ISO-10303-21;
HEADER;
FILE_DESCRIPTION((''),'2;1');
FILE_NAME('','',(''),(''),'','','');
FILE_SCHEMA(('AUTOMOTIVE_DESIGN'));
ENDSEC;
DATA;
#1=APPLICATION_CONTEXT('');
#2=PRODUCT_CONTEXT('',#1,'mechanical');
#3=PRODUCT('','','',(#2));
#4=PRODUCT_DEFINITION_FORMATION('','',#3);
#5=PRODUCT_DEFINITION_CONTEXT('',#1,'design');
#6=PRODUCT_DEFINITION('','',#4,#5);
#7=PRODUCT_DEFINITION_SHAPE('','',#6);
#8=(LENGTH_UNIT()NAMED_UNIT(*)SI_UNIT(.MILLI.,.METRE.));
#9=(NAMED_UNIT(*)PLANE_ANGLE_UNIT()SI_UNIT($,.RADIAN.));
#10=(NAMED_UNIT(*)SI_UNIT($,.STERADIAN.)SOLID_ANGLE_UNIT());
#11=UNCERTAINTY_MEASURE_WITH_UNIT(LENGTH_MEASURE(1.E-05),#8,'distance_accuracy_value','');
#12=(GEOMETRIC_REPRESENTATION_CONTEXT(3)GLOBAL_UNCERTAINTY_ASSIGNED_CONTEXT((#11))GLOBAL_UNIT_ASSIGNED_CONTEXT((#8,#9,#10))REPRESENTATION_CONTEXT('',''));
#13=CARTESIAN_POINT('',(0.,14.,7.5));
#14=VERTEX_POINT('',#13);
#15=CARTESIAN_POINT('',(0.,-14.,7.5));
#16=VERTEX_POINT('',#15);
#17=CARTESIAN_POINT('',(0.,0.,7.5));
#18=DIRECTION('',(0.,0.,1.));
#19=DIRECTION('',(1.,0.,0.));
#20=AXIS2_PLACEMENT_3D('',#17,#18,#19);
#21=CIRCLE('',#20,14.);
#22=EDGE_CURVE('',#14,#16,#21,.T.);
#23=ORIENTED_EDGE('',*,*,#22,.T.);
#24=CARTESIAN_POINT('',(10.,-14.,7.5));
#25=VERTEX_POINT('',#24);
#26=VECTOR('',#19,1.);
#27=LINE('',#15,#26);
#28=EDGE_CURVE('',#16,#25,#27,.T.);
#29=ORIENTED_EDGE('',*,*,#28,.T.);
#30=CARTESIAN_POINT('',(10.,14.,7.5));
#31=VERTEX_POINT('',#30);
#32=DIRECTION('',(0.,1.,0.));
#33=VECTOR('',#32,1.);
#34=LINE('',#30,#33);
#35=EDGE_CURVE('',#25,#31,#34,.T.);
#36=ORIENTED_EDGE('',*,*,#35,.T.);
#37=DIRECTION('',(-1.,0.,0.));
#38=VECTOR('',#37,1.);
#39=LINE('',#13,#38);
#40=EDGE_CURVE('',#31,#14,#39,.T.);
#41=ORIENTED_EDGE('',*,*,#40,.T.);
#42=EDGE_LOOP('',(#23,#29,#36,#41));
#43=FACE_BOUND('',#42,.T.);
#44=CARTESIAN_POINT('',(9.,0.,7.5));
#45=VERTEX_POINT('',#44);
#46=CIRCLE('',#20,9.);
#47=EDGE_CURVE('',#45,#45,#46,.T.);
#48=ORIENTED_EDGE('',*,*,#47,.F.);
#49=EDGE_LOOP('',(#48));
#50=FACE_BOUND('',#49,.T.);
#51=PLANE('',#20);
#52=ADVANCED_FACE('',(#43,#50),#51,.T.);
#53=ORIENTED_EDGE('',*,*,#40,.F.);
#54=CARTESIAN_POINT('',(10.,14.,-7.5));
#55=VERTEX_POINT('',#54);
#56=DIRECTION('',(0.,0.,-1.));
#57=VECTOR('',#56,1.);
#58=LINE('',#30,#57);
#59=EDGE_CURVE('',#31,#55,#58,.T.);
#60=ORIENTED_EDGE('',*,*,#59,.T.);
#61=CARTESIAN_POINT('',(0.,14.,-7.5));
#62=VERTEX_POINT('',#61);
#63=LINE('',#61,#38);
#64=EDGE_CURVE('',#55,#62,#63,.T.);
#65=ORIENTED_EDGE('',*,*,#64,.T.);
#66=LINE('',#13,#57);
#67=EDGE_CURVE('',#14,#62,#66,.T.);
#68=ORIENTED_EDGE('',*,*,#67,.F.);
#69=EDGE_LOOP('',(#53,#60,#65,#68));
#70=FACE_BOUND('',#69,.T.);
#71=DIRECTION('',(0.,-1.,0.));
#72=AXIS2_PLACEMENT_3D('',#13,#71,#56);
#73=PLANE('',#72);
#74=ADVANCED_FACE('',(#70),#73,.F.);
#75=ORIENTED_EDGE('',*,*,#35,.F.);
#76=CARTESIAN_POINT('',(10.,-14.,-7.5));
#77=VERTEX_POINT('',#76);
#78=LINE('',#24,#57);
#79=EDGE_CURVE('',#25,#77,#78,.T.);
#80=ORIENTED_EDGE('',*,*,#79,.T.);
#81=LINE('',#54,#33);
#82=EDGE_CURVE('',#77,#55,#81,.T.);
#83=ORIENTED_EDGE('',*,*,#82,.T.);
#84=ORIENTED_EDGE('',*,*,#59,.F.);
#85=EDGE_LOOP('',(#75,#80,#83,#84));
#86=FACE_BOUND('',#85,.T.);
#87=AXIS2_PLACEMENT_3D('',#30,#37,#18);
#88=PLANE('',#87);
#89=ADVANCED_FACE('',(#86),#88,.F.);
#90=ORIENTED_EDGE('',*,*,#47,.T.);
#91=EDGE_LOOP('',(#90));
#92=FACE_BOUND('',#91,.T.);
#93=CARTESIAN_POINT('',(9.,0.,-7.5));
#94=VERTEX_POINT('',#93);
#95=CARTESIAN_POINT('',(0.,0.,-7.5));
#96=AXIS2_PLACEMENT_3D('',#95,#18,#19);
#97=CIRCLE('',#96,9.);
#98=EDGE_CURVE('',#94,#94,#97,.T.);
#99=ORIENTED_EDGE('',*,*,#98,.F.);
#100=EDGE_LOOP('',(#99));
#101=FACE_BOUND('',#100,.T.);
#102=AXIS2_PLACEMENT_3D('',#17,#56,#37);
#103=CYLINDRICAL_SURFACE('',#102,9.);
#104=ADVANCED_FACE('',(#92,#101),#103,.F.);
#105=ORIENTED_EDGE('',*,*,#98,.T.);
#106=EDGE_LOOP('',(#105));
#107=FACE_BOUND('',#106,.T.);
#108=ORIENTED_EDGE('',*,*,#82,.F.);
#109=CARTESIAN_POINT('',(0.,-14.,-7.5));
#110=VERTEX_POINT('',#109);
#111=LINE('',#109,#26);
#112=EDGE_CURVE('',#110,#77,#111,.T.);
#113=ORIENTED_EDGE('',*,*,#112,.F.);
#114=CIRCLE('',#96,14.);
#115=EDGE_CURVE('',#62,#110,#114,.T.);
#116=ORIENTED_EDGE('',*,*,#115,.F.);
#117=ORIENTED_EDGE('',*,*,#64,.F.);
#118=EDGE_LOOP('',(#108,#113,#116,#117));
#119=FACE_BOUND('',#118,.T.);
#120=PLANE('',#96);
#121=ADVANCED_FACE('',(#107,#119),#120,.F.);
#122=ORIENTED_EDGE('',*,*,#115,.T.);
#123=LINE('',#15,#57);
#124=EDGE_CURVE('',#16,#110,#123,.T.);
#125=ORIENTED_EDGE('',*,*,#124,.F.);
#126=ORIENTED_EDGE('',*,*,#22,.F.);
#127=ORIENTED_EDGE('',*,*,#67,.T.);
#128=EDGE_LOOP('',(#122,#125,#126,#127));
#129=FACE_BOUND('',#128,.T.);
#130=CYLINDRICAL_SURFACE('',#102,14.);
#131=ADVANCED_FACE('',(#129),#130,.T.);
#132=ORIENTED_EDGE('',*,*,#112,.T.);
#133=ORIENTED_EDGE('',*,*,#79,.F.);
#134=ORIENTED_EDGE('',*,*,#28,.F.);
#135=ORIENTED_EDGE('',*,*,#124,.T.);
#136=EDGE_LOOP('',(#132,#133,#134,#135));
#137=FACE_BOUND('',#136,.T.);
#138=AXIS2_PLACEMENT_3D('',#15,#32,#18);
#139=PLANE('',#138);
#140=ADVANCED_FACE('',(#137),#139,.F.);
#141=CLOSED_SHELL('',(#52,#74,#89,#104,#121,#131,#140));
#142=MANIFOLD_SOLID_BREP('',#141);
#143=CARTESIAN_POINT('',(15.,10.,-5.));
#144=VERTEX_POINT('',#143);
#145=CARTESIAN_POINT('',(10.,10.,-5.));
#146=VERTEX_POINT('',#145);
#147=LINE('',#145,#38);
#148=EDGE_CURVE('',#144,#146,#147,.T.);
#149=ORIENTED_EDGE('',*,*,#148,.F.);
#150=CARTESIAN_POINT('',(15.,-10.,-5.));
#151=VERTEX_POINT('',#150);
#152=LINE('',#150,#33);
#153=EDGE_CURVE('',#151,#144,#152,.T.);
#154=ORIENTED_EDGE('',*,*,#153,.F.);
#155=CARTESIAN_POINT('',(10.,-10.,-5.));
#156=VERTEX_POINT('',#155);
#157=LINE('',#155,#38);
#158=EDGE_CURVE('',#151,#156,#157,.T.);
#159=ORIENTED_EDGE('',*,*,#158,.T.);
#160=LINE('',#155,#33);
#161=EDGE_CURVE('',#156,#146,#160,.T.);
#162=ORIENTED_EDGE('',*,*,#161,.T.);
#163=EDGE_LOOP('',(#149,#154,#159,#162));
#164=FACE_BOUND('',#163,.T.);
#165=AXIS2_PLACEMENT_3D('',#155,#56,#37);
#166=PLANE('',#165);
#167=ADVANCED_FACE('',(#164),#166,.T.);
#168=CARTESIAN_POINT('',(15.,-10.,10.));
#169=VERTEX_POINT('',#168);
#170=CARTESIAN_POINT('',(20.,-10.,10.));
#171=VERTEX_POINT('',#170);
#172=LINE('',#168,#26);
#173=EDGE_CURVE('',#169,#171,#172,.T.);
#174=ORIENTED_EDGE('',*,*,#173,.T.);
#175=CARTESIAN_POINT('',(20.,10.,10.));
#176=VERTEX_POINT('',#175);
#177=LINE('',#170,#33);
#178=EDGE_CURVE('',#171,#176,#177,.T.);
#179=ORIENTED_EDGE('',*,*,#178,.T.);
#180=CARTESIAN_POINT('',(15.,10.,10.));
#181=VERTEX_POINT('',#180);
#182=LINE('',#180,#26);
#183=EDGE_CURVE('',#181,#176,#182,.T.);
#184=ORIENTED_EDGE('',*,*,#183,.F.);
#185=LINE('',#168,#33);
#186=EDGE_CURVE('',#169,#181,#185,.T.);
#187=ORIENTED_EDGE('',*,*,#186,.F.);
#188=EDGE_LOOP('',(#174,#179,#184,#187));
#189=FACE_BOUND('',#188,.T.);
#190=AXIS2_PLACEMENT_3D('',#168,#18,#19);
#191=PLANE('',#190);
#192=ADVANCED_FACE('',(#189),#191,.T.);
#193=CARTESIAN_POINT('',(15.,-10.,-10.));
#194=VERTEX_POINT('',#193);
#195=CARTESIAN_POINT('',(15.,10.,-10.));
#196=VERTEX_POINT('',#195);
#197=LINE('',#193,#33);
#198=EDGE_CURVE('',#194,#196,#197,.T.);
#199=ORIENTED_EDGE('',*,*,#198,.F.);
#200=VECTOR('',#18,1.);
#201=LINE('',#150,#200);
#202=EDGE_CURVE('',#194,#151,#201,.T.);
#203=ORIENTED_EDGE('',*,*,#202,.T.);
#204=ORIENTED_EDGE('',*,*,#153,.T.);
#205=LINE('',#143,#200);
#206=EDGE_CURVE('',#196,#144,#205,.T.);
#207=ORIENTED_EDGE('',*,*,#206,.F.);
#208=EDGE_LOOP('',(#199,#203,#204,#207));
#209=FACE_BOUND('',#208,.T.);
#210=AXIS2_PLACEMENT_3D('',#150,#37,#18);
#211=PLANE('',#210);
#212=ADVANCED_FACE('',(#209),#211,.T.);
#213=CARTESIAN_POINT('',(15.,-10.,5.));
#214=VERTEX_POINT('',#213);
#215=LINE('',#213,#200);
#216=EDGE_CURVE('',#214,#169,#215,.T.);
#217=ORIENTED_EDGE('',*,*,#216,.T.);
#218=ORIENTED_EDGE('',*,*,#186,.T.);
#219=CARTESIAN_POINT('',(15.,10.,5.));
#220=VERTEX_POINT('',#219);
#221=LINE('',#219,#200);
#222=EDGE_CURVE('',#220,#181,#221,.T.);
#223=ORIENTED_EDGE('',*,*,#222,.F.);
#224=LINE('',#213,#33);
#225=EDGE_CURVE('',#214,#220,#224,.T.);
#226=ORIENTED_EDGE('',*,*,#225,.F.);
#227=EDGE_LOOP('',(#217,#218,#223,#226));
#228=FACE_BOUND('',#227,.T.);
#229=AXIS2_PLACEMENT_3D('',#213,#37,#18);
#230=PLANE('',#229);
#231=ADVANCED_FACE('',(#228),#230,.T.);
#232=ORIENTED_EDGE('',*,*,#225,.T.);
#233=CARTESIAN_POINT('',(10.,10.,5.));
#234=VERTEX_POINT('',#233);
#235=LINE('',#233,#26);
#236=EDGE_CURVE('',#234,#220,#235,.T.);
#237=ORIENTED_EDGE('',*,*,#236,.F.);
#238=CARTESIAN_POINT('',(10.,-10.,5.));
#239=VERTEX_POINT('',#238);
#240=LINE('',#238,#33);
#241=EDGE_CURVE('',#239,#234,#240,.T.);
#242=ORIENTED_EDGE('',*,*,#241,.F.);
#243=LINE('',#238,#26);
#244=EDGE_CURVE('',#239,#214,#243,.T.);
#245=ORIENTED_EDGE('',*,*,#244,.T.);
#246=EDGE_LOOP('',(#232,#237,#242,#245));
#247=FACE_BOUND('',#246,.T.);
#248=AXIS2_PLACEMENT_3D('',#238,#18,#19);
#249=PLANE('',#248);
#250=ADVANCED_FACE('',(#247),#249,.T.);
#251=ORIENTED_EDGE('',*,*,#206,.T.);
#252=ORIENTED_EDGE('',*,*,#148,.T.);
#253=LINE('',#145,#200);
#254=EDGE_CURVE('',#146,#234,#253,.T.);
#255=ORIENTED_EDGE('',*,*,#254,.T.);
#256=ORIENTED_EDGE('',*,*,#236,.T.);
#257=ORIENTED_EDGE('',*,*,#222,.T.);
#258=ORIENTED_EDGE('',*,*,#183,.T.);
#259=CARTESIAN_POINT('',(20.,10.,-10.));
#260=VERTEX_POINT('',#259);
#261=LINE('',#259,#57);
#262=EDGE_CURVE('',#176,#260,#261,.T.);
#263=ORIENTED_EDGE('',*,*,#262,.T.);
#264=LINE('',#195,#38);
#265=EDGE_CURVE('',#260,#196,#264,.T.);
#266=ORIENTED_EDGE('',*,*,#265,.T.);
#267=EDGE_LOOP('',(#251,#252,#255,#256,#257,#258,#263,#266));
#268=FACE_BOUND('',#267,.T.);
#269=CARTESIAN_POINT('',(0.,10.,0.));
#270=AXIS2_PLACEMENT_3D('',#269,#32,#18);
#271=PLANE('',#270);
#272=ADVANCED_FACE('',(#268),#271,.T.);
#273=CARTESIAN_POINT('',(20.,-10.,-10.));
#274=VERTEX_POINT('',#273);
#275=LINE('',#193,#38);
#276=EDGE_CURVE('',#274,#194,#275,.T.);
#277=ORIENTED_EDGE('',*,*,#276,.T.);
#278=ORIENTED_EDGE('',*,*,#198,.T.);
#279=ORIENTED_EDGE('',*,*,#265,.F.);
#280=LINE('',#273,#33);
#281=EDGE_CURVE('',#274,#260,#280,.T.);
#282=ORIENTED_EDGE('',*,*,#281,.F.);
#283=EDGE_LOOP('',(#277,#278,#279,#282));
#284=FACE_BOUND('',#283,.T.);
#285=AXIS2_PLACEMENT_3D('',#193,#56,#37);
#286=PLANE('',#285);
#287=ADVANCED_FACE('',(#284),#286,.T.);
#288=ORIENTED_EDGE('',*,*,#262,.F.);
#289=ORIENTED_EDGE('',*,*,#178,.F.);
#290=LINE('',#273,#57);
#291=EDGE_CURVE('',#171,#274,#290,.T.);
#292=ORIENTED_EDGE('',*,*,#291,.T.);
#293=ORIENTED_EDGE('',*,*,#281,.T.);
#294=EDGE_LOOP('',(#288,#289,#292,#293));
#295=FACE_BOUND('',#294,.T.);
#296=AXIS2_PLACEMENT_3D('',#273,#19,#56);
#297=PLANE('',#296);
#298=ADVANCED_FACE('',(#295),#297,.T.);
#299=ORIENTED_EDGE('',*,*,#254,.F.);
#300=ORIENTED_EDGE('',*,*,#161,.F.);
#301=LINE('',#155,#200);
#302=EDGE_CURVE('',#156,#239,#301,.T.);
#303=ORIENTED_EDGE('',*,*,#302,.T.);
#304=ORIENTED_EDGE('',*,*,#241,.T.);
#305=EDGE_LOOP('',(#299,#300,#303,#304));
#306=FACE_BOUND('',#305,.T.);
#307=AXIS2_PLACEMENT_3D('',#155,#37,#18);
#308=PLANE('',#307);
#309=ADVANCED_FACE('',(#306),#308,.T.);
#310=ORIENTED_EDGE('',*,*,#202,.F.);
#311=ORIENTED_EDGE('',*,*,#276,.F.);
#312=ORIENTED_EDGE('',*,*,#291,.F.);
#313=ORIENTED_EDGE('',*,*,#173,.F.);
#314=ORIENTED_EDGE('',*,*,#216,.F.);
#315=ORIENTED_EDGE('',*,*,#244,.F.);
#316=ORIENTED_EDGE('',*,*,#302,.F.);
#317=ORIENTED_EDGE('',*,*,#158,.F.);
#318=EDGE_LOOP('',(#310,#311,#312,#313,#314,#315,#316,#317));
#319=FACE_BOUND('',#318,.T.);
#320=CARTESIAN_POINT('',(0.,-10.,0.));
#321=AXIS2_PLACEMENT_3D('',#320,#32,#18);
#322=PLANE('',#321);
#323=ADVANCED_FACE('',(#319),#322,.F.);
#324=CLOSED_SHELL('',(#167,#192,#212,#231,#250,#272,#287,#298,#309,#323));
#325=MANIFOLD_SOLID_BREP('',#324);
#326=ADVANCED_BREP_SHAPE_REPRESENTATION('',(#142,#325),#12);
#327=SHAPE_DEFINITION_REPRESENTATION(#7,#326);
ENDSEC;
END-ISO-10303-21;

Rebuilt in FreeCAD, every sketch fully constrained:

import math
import FreeCAD as App
import Part
import Sketcher


def add_polygon(sketch, points):
    """Adds a closed chain of lines whose ends are joined by coincident constraints."""
    first, n = sketch.GeometryCount, len(points)
    for a, b in zip(points, points[1:] + points[:1]):
        sketch.addGeometry(Part.LineSegment(App.Vector(*a, 0), App.Vector(*b, 0)), False)
    for i in range(n):
        sketch.addConstraint(Sketcher.Constraint("Coincident", first + i, 2, first + (i + 1) % n, 1))

doc = App.newDocument("Part")
body = doc.addObject("PartDesign::Body", "Body")

# Sketch on XY plane
sketch1 = body.newObject("Sketcher::SketchObject", "Sketch")
sketch1.AttachmentSupport = (doc.getObject("XY_Plane"), [""])
sketch1.MapMode = "FlatFace"
sketch1.addGeometry(Part.LineSegment(App.Vector(10, 14, 0), App.Vector(0, 14, 0)), False)
sketch1.addGeometry(Part.ArcOfCircle(Part.Circle(App.Vector(0, 0, 0), App.Vector(0, 0, 1), 14), math.radians(90), math.radians(270)), False)
sketch1.addGeometry(Part.LineSegment(App.Vector(0, -14, 0), App.Vector(10, -14, 0)), False)
sketch1.addGeometry(Part.LineSegment(App.Vector(10, -14, 0), App.Vector(10, 14, 0)), False)
sketch1.addGeometry(Part.Circle(App.Vector(0, 0, 0), App.Vector(0, 0, 1), 9), False)
sketch1.addConstraint(Sketcher.Constraint("Tangent", 0, 2, 1, 1))
sketch1.addConstraint(Sketcher.Constraint("Tangent", 1, 2, 2, 1))
sketch1.addConstraint(Sketcher.Constraint("Coincident", 2, 2, 3, 1))
sketch1.addConstraint(Sketcher.Constraint("Coincident", 3, 2, 0, 1))
sketch1.addConstraint(Sketcher.Constraint("Horizontal", 0))
sketch1.addConstraint(Sketcher.Constraint("Horizontal", 2))
sketch1.addConstraint(Sketcher.Constraint("Vertical", 3))
sketch1.addConstraint(Sketcher.Constraint("Coincident", 1, 3, -1, 1))
sketch1.addConstraint(Sketcher.Constraint("Coincident", 4, 3, -1, 1))
sketch1.addConstraint(Sketcher.Constraint("Diameter", 4, 18.0))
sketch1.addConstraint(Sketcher.Constraint("Radius", 1, 14.0))
sketch1.addConstraint(Sketcher.Constraint("DistanceX", 0, 2, 0, 1, 10.0))
pad1 = body.newObject("PartDesign::Pad", "Pad")
pad1.Profile = sketch1
pad1.Length = 15
pad1.Midplane = True
body2 = doc.addObject("PartDesign::Body", "Body001")

# Sketch on XZ plane
sketch2 = body2.newObject("Sketcher::SketchObject", "Sketch001")
sketch2.AttachmentSupport = (doc.getObject("XZ_Plane001"), [""])
sketch2.MapMode = "FlatFace"
sketch2.AttachmentOffset = App.Placement(App.Vector(0, 0, -10), App.Rotation())
add_polygon(sketch2, [(15, -5), (10, -5), (10, 5), (15, 5), (15, 10), (20, 10), (20, -10), (15, -10)])  # lines 0-7
sketch2.addConstraint(Sketcher.Constraint("Horizontal", 0))
sketch2.addConstraint(Sketcher.Constraint("Vertical", 1))
sketch2.addConstraint(Sketcher.Constraint("Horizontal", 2))
sketch2.addConstraint(Sketcher.Constraint("Vertical", 3))
sketch2.addConstraint(Sketcher.Constraint("Horizontal", 4))
sketch2.addConstraint(Sketcher.Constraint("Vertical", 5))
sketch2.addConstraint(Sketcher.Constraint("Horizontal", 6))
sketch2.addConstraint(Sketcher.Constraint("Vertical", 7))
sketch2.addConstraint(Sketcher.Constraint("Symmetric", 3, 2, 6, 2, -1))
sketch2.addConstraint(Sketcher.Constraint("Equal", 2, 4))
sketch2.addConstraint(Sketcher.Constraint("Equal", 6, 3))
sketch2.addConstraint(Sketcher.Constraint("Equal", 3, 7))
sketch2.addConstraint(Sketcher.Constraint("DistanceX", 0, 2, 0, 1, 5.0))
sketch2.addConstraint(Sketcher.Constraint("DistanceY", 1, 1, 1, 2, 10.0))
sketch2.addConstraint(Sketcher.Constraint("DistanceX", -1, 1, 0, 2, 10.0))
pad2 = body2.newObject("PartDesign::Pad", "Pad001")
pad2.Profile = sketch2
pad2.Length = 20

doc.recompute()
